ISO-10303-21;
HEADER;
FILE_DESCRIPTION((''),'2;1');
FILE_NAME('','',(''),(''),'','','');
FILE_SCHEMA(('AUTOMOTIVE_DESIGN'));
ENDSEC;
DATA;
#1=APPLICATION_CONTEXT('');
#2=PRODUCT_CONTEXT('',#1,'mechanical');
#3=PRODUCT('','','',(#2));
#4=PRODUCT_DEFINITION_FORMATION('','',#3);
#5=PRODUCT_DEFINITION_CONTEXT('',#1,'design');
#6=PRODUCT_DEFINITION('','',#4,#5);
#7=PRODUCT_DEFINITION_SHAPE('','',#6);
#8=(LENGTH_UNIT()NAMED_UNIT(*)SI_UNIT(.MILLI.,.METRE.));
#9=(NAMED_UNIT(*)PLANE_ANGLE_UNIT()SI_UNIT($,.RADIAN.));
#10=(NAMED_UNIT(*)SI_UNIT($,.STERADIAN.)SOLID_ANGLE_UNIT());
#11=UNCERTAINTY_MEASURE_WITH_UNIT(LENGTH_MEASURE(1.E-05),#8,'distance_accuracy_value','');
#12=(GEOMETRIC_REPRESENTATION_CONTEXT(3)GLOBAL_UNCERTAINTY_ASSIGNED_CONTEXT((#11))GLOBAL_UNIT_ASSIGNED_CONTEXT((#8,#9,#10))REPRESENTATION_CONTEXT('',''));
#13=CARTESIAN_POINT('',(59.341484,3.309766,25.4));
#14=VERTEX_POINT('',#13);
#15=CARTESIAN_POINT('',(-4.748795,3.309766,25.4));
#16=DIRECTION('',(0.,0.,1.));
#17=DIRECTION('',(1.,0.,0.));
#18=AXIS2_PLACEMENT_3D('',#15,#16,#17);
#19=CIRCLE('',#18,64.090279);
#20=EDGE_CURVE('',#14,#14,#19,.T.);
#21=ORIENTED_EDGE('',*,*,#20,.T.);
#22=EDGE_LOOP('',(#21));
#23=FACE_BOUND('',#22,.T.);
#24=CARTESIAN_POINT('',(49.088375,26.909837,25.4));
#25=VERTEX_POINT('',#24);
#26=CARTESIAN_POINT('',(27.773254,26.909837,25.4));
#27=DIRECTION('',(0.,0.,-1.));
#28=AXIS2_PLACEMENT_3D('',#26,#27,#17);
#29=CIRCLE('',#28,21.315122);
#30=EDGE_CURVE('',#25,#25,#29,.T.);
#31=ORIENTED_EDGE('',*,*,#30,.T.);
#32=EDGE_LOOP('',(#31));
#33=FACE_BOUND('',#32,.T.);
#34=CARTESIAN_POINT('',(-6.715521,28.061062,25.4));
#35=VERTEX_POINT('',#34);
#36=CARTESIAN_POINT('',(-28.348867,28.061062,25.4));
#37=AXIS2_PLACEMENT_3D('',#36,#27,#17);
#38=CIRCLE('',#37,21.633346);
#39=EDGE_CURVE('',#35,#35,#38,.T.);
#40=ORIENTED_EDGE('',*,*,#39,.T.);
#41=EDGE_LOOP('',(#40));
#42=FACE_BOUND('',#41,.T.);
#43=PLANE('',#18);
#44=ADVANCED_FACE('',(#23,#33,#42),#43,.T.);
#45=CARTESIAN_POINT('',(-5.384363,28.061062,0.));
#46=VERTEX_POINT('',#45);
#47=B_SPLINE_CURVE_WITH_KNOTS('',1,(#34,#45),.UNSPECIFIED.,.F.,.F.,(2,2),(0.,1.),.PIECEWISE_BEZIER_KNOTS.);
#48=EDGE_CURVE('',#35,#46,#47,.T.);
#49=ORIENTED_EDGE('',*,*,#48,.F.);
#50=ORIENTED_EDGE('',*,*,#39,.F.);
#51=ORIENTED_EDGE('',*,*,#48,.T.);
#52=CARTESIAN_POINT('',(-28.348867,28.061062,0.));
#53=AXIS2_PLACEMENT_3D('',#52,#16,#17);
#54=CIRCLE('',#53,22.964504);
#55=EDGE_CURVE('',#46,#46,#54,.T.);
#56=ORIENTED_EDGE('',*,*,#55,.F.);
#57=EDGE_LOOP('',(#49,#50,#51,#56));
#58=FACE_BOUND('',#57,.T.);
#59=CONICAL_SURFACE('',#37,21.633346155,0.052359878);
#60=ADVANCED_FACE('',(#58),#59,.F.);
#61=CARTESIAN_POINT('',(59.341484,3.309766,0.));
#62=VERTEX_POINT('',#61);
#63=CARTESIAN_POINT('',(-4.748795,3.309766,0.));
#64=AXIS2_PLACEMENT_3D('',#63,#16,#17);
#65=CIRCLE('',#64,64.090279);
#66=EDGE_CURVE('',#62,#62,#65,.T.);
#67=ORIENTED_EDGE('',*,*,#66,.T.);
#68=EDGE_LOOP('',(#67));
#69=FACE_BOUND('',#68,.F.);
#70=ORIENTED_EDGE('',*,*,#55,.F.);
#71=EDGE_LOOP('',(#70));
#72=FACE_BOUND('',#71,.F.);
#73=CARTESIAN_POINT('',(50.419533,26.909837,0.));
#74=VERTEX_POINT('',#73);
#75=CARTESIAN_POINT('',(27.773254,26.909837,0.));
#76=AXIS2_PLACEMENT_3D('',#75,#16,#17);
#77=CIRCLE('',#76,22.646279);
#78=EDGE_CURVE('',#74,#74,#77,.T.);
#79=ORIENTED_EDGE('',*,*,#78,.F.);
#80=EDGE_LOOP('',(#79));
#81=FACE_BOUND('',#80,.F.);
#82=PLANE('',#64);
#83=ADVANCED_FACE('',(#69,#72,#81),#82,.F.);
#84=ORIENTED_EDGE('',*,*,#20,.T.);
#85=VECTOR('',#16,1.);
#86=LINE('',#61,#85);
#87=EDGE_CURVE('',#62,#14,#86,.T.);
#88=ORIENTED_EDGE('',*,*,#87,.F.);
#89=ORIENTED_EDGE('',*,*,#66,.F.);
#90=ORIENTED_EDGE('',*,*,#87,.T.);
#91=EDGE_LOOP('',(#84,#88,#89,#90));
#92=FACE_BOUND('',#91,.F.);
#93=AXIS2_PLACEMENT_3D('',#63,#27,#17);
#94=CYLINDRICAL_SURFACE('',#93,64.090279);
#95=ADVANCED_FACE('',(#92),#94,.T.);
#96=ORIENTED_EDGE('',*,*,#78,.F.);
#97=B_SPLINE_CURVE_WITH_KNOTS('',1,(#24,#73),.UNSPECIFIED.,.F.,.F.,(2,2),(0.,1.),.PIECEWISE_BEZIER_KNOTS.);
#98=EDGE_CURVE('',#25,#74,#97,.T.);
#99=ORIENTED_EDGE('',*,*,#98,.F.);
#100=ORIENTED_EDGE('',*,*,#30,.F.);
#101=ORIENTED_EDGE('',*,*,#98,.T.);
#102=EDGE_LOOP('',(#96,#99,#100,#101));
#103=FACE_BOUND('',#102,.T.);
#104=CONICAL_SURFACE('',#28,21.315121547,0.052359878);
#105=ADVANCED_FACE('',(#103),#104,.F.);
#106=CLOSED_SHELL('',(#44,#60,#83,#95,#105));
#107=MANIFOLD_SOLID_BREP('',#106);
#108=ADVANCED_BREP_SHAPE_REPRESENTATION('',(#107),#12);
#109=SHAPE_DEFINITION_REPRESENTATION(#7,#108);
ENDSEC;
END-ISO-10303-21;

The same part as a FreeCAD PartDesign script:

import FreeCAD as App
import Part
import Sketcher

V = App.Vector
Q = App.Units.Quantity

doc = App.newDocument("Part")
params = doc.addObject("Spreadsheet::Sheet", "Params")
for row, (alias, value) in enumerate([
    ("pad1_length", "1 in"),
    ("pocket1_length", "1 in"),
    ("pocket1_taper", "3 deg"),
], start=1):
    params.set(f"A{row}", alias)
    params.set(f"B{row}", "=" + value)
    params.setAlias(f"B{row}", alias)

body = doc.addObject("PartDesign::Body", "Body")

sketch1 = body.newObject("Sketcher::SketchObject", "Sketch")
sketch1.AttachmentSupport = (doc.getObject("XY_Plane"), [""])
sketch1.MapMode = "FlatFace"
sketch1.addGeometry(Part.Circle(V(-4.748795, 3.309766, 0), V(0, 0, 1), 64.090279), False)
sketch1.addConstraint(Sketcher.Constraint("Diameter", 0, Q("128.180557 mm")))
sketch1.addConstraint(Sketcher.Constraint("DistanceX", 0, 3, -1, 1, Q("4.748795 mm")))
sketch1.addConstraint(Sketcher.Constraint("DistanceY", -1, 1, 0, 3, Q("3.309766 mm")))
pad1 = body.newObject("PartDesign::Pad", "Pad")
pad1.Profile = sketch1
pad1.setExpression("Length", "Params.pad1_length")

sketch2 = body.newObject("Sketcher::SketchObject", "Sketch001")
sketch2.AttachmentSupport = (doc.getObject("XY_Plane"), [""])
sketch2.MapMode = "FlatFace"
sketch2.AttachmentOffset = App.Placement(V(0, 0, 1 * 25.4), App.Rotation())
sketch2.addGeometry(Part.Circle(V(-28.348867, 28.061062, 0), V(0, 0, 1), 21.633346), False)
sketch2.addGeometry(Part.Circle(V(27.773254, 26.909837, 0), V(0, 0, 1), 21.315122), False)
sketch2.addConstraint(Sketcher.Constraint("Diameter", 0, Q("43.266692 mm")))
sketch2.addConstraint(Sketcher.Constraint("Diameter", 1, Q("42.630243 mm")))
sketch2.addConstraint(Sketcher.Constraint("DistanceX", 0, 3, 1, 3, Q("56.12212 mm")))
sketch2.addConstraint(Sketcher.Constraint("DistanceX", 0, 3, -1, 1, Q("28.348867 mm")))
sketch2.addConstraint(Sketcher.Constraint("DistanceY", -1, 1, 0, 3, Q("28.061062 mm")))
sketch2.addConstraint(Sketcher.Constraint("DistanceY", -1, 1, 1, 3, Q("26.909837 mm")))
pocket1 = body.newObject("PartDesign::Pocket", "Pocket")
pocket1.Profile = sketch2
pocket1.setExpression("Length", "Params.pocket1_length")
pocket1.setExpression("TaperAngle", "Params.pocket1_taper")

doc.recompute()
